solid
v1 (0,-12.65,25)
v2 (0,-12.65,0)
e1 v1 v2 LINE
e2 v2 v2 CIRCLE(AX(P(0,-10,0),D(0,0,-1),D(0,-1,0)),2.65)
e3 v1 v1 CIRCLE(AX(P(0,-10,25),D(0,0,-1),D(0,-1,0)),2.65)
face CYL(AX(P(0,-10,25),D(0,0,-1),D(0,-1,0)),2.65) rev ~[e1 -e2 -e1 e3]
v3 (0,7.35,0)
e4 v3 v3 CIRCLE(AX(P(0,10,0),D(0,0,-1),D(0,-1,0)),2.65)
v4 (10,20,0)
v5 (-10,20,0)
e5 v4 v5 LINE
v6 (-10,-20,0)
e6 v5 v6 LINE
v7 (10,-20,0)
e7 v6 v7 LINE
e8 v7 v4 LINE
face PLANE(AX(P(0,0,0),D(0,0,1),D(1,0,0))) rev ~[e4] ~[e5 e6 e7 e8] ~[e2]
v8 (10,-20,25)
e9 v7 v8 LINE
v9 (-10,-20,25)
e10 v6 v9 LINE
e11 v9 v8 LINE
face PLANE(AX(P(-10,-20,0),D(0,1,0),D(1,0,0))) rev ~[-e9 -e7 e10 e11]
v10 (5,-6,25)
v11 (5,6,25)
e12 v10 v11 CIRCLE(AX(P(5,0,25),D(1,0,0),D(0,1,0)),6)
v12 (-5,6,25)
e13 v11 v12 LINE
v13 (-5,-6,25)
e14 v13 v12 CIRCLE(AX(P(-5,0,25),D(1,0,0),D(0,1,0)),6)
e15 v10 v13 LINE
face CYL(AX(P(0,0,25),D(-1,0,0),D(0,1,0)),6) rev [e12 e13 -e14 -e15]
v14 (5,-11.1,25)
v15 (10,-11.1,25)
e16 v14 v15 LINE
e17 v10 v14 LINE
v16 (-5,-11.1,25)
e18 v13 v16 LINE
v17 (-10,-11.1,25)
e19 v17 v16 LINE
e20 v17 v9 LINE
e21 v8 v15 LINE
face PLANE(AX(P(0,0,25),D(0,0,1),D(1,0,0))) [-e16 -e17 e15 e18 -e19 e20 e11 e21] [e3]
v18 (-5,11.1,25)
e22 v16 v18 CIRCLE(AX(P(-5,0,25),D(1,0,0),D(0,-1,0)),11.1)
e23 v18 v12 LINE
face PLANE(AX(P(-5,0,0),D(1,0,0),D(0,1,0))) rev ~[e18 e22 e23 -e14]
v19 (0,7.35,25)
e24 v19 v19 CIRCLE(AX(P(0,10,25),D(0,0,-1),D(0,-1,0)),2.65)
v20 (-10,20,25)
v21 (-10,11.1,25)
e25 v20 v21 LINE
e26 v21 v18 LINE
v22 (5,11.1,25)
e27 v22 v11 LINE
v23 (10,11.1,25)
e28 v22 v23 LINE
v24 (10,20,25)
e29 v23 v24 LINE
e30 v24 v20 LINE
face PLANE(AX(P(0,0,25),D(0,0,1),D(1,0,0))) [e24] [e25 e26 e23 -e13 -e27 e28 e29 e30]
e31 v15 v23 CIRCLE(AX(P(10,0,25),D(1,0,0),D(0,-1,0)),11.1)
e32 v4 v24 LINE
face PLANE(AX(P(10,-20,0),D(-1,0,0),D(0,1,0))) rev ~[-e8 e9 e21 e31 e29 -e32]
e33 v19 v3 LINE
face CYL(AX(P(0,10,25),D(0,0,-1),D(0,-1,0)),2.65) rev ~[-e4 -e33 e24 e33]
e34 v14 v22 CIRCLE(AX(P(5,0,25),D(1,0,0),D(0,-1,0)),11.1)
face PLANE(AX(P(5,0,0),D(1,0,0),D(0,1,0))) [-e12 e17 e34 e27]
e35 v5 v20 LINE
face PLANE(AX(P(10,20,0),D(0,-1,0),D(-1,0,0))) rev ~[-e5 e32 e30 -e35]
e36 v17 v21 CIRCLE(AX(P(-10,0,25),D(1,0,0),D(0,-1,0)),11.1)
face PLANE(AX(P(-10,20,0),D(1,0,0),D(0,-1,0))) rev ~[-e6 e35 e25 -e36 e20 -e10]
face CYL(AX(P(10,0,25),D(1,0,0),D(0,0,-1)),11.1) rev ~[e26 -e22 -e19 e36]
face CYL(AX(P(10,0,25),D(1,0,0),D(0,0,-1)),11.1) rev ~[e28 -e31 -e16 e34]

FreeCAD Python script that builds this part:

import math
import FreeCAD as App
import Part
import Sketcher
from FreeCAD import Vector
Q = App.Units.Quantity

doc = App.newDocument("Part")
body = doc.addObject("PartDesign::Body", "Body")

sketch1 = body.newObject("Sketcher::SketchObject", "Sketch")
sketch1.AttachmentSupport = (doc.getObject("XY_Plane"), [""])
sketch1.MapMode = "FlatFace"
sketch1.addGeometry(Part.LineSegment(Vector(-10, 20, 0), Vector(-10, -20, 0)), False)
sketch1.addGeometry(Part.LineSegment(Vector(-10, -20, 0), Vector(10, -20, 0)), False)
sketch1.addGeometry(Part.LineSegment(Vector(10, -20, 0), Vector(10, 20, 0)), False)
sketch1.addGeometry(Part.LineSegment(Vector(10, 20, 0), Vector(-10, 20, 0)), False)
sketch1.addConstraint(Sketcher.Constraint("Coincident", 0, 2, 1, 1))
sketch1.addConstraint(Sketcher.Constraint("Coincident", 1, 2, 2, 1))
sketch1.addConstraint(Sketcher.Constraint("Coincident", 2, 2, 3, 1))
sketch1.addConstraint(Sketcher.Constraint("Coincident", 3, 2, 0, 1))
sketch1.addConstraint(Sketcher.Constraint("Vertical", 0))
sketch1.addConstraint(Sketcher.Constraint("Horizontal", 1))
sketch1.addConstraint(Sketcher.Constraint("Vertical", 2))
sketch1.addConstraint(Sketcher.Constraint("Horizontal", 3))
sketch1.addConstraint(Sketcher.Constraint("Symmetric", 0, 2, 2, 2, -1, 1))
sketch1.addConstraint(Sketcher.Constraint("DistanceX", 1, 1, 1, 2, Q("20 mm")))
sketch1.addConstraint(Sketcher.Constraint("DistanceY", 0, 2, 0, 1, Q("40 mm")))
pad1 = body.newObject("PartDesign::Pad", "Pad")
pad1.Profile = sketch1
pad1.Length = 25

sketch2 = body.newObject("Sketcher::SketchObject", "Sketch001")
sketch2.AttachmentSupport = (doc.getObject("YZ_Plane"), [""])
sketch2.MapMode = "FlatFace"
sketch2.AttachmentOffset = App.Placement(Vector(0, 0, 10), App.Rotation())
sketch2.addGeometry(Part.Circle(Vector(0, 25, 0), Vector(0, 0, 1), 11.1), False)
sketch2.addConstraint(Sketcher.Constraint("PointOnObject", 0, 3, -2))
sketch2.addConstraint(Sketcher.Constraint("Diameter", 0, Q("22.2 mm")))
sketch2.addConstraint(Sketcher.Constraint("DistanceY", -1, 1, 0, 3, Q("25 mm")))
pocket1 = body.newObject("PartDesign::Pocket", "Pocket")
pocket1.Profile = sketch2
pocket1.Type = "ThroughAll"

sketch3 = body.newObject("Sketcher::SketchObject", "Sketch002")
sketch3.AttachmentSupport = (doc.getObject("YZ_Plane"), [""])
sketch3.MapMode = "FlatFace"
sketch3.addGeometry(Part.LineSegment(Vector(-6, 25, 0), Vector(-11.1, 25, 0)), False)
sketch3.addGeometry(Part.ArcOfCircle(Part.Circle(Vector(0, 25, 0), Vector(0, 0, 1), 11.1), math.radians(180), math.radians(360)), False)
sketch3.addGeometry(Part.LineSegment(Vector(11.1, 25, 0), Vector(6, 25, 0)), False)
sketch3.addGeometry(Part.ArcOfCircle(Part.Circle(Vector(0, 25, 0), Vector(0, 0, 1), 6), math.radians(180), math.radians(360)), False)
sketch3.addConstraint(Sketcher.Constraint("Coincident", 0, 2, 1, 1))
sketch3.addConstraint(Sketcher.Constraint("Coincident", 1, 2, 2, 1))
sketch3.addConstraint(Sketcher.Constraint("Coincident", 2, 2, 3, 2))
sketch3.addConstraint(Sketcher.Constraint("Coincident", 3, 1, 0, 1))
sketch3.addConstraint(Sketcher.Constraint("Horizontal", 0))
sketch3.addConstraint(Sketcher.Constraint("Horizontal", 2))
sketch3.addConstraint(Sketcher.Constraint("Coincident", 3, 3, 1, 3))
sketch3.addConstraint(Sketcher.Constraint("Symmetric", 0, 2, 1, 2, -2))
sketch3.addConstraint(Sketcher.Constraint("Horizontal", 3, 3, 0, 2))
sketch3.addConstraint(Sketcher.Constraint("Radius", 3, Q("6 mm")))
sketch3.addConstraint(Sketcher.Constraint("Radius", 1, Q("11.1 mm")))
sketch3.addConstraint(Sketcher.Constraint("DistanceY", -1, 1, 1, 3, Q("25 mm")))
pad2 = body.newObject("PartDesign::Pad", "Pad001")
pad2.Profile = sketch3
pad2.Length = 10
pad2.Midplane = True

sketch4 = body.newObject("Sketcher::SketchObject", "Sketch003")
sketch4.AttachmentSupport = (doc.getObject("XY_Plane"), [""])
sketch4.MapMode = "FlatFace"
sketch4.AttachmentOffset = App.Placement(Vector(0, 0, 25), App.Rotation())
sketch4.addGeometry(Part.Circle(Vector(0, 10, 0), Vector(0, 0, 1), 2.65), False)
sketch4.addGeometry(Part.Circle(Vector(0, -10, 0), Vector(0, 0, 1), 2.65), False)
sketch4.addConstraint(Sketcher.Constraint("Equal", 0, 1))
sketch4.addConstraint(Sketcher.Constraint("Symmetric", 0, 3, 1, 3, -1, 1))
sketch4.addConstraint(Sketcher.Constraint("PointOnObject", 0, 3, -2))
sketch4.addConstraint(Sketcher.Constraint("Diameter", 0, Q("5.3 mm")))
sketch4.addConstraint(Sketcher.Constraint("DistanceY", -1, 1, 0, 3, Q("10 mm")))
doc.recompute()
hole = body.newObject("PartDesign::Hole", "Hole")
hole.Profile = sketch4
hole.ThreadType = "None"
hole.Diameter = 5.3
hole.DepthType = "Dimension"
hole.Depth = 58
hole.DrillPoint = "Flat"

doc.recompute()
